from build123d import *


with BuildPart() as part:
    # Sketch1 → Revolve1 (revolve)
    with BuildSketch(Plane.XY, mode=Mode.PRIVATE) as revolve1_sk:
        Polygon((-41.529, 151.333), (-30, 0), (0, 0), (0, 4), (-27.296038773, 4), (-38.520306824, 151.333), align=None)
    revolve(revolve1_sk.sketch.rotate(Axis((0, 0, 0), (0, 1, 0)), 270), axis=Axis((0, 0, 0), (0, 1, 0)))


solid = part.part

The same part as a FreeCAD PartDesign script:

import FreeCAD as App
import Part
import Sketcher
from FreeCAD import Vector
Q = App.Units.Quantity


def add_polygon(sketch, points):
    """Adds a closed chain of lines whose ends are joined by coincident constraints."""
    first, n = sketch.GeometryCount, len(points)
    for a, b in zip(points, points[1:] + points[:1]):
        sketch.addGeometry(Part.LineSegment(App.Vector(*a, 0), App.Vector(*b, 0)), False)
    for i in range(n):
        sketch.addConstraint(Sketcher.Constraint("Coincident", first + i, 2, first + (i + 1) % n, 1))

doc = App.newDocument("Part")
params = doc.addObject("Spreadsheet::Sheet", "Params")
for row, (alias, value) in enumerate([
    ("sketch1_width", "30 mm"),
    ("sketch1_height", "4 mm"),
    ("revolution_angle", "360 deg"),
], start=1):
    params.set(f"A{row}", alias)
    params.set(f"B{row}", "=" + value)
    params.setAlias(f"B{row}", alias)

body = doc.addObject("PartDesign::Body", "Body")

# Sketch on XY plane
sketch1 = body.newObject("Sketcher::SketchObject", "Sketch")
sketch1.AttachmentSupport = (doc.getObject("XY_Plane"), [""])
sketch1.MapMode = "FlatFace"
add_polygon(sketch1, [(-41.5, 151.3), (-30, 0), (0, 0), (0, 4), (-27.3, 4), (-38.5, 151.3)])  # lines 0-5
sketch1.addConstraint(Sketcher.Constraint("Horizontal", 1))
sketch1.addConstraint(Sketcher.Constraint("Vertical", 2))
sketch1.addConstraint(Sketcher.Constraint("Horizontal", 3))
sketch1.addConstraint(Sketcher.Constraint("Horizontal", 5))
sketch1.addConstraint(Sketcher.Constraint("Coincident", 1, 2, -1, 1))
sketch1.addConstraint(Sketcher.Constraint("Parallel", 0, 4))
sketch1.addConstraint(Sketcher.Constraint("DistanceX", 1, 1, 1, 2, Q("30 mm")))
sketch1.addConstraint(Sketcher.Constraint("DistanceY", 2, 1, 2, 2, Q("4 mm")))
sketch1.addConstraint(Sketcher.Constraint("DistanceY", -1, 1, 4, 2, Q("151.333 mm")))
sketch1.addConstraint(Sketcher.Constraint("DistanceX", 5, 2, -1, 1, Q("41.529 mm")))
sketch1.addConstraint(Sketcher.Constraint("DistanceX", 3, 2, 3, 1, Q("27.296039 mm")))
sketch1.setExpression("Constraints[12]", "Params.sketch1_width")
sketch1.setExpression("Constraints[13]", "Params.sketch1_height")
revolution = body.newObject("PartDesign::Revolution", "Revolution")
revolution.Profile = sketch1
revolution.ReferenceAxis = (sketch1, ["V_Axis"])
revolution.setExpression("Angle", "Params.revolution_angle")

doc.recompute()
